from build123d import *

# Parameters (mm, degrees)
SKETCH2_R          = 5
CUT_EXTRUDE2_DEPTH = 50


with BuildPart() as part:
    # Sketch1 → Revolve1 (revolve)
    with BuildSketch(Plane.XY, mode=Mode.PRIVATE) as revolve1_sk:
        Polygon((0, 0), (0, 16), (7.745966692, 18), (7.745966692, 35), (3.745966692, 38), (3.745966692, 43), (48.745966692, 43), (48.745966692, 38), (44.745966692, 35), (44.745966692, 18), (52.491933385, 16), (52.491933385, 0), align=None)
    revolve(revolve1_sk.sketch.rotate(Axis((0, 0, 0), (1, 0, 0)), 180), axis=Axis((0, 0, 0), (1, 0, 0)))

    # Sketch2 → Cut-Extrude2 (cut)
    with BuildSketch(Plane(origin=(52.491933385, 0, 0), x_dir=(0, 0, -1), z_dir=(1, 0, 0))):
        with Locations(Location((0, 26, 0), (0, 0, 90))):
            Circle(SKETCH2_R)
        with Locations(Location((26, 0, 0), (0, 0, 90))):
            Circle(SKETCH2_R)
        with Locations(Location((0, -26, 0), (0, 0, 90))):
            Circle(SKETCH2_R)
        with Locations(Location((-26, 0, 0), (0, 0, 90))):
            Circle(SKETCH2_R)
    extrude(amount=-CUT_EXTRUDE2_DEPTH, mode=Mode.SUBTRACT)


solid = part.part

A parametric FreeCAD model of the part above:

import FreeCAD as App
import Part
import Sketcher
Q = App.Units.Quantity


def add_polygon(sketch, points):
    """Adds a closed chain of lines whose ends are joined by coincident constraints."""
    first, n = sketch.GeometryCount, len(points)
    for a, b in zip(points, points[1:] + points[:1]):
        sketch.addGeometry(Part.LineSegment(App.Vector(*a, 0), App.Vector(*b, 0)), False)
    for i in range(n):
        sketch.addConstraint(Sketcher.Constraint("Coincident", first + i, 2, first + (i + 1) % n, 1))

doc = App.newDocument("Part")
params = doc.addObject("Spreadsheet::Sheet", "Params")
for row, (alias, value) in enumerate([
    ("sketch1_width", "45 mm"),
    ("sketch1_height", "16 mm"),
    ("sketch1_height2", "17 mm"),
    ("sketch1_height3", "5 mm"),
    ("sketch1_length", "8 mm"),
    ("revolution_angle", "360 deg"),
    ("sketch2_diameter", "10 mm"),
    ("pocket1_length", "50 mm"),
], start=1):
    params.set(f"A{row}", alias)
    params.set(f"B{row}", "=" + value)
    params.setAlias(f"B{row}", alias)

body = doc.addObject("PartDesign::Body", "Body")

sketch1 = body.newObject("Sketcher::SketchObject", "Sketch")
sketch1.AttachmentSupport = (doc.getObject("XY_Plane"), [""])
sketch1.MapMode = "FlatFace"
add_polygon(sketch1, [(0, 16), (0, 0), (52.491933, 0), (52.491933, 16), (44.745967, 18), (44.745967, 35), (48.745967, 38), (48.745967, 43), (3.745967, 43), (3.745967, 38), (7.745967, 35), (7.745967, 18)])
sketch1.addConstraint([
    Sketcher.Constraint("Vertical", 0),
    Sketcher.Constraint("Horizontal", 1),
    Sketcher.Constraint("Vertical", 2),
    Sketcher.Constraint("Vertical", 4),
    Sketcher.Constraint("Vertical", 6),
    Sketcher.Constraint("Horizontal", 7),
    Sketcher.Constraint("Vertical", 8),
    Sketcher.Constraint("Vertical", 10),
    Sketcher.Constraint("Coincident", 0, 2, -1, 1),
    Sketcher.Constraint("Horizontal", 5, 2, 8, 2),
    Sketcher.Constraint("Horizontal", 4, 2, 9, 2),
    Sketcher.Constraint("Horizontal", 3, 2, 10, 2),
    Sketcher.Constraint("Horizontal", 2, 2, 11, 2),
    Sketcher.Constraint("Equal", 5, 9),
    Sketcher.Constraint("Equal", 3, 11),
    Sketcher.Constraint("DistanceX", 7, 2, 7, 1, Q("45 mm")),
    Sketcher.Constraint("DistanceY", 0, 2, 0, 1, Q("16 mm")),
    Sketcher.Constraint("DistanceY", 4, 1, 4, 2, Q("17 mm")),
    Sketcher.Constraint("DistanceY", 6, 1, 6, 2, Q("5 mm")),
    Sketcher.Constraint("Distance", 3, Q("8 mm")),
    Sketcher.Constraint("Distance", 5, Q("5 mm")),
    Sketcher.Constraint("DistanceY", -1, 1, 3, 2, Q("18 mm")),
    Sketcher.Constraint("DistanceY", -1, 1, 5, 2, Q("38 mm")),
])
sketch1.setExpression("Constraints[27]", "Params.sketch1_width")
sketch1.setExpression("Constraints[28]", "Params.sketch1_height")
sketch1.setExpression("Constraints[29]", "Params.sketch1_height2")
sketch1.setExpression("Constraints[30]", "Params.sketch1_height3")
sketch1.setExpression("Constraints[31]", "Params.sketch1_length")
revolution = body.newObject("PartDesign::Revolution", "Revolution")
revolution.Profile = sketch1
revolution.ReferenceAxis = (sketch1, ["H_Axis"])
revolution.setExpression("Angle", "Params.revolution_angle")

sketch2 = body.newObject("Sketcher::SketchObject", "Sketch001")
sketch2.AttachmentSupport = (doc.getObject("YZ_Plane"), [""])
sketch2.MapMode = "FlatFace"
sketch2.AttachmentOffset = App.Placement(App.Vector(0, 0, 52.491933), App.Rotation())
sketch2.addGeometry([
    Part.Circle(App.Vector(26, 0, 0), App.Vector(0, 0, 1), 5),
    Part.Circle(App.Vector(0, -26, 0), App.Vector(0, 0, 1), 5),
    Part.Circle(App.Vector(-26, 0, 0), App.Vector(0, 0, 1), 5),
    Part.Circle(App.Vector(0, 26, 0), App.Vector(0, 0, 1), 5),
], False)
sketch2.addConstraint([
    Sketcher.Constraint("Equal", 0, 1),
    Sketcher.Constraint("Equal", 1, 2),
    Sketcher.Constraint("Equal", 2, 3),
    Sketcher.Constraint("Symmetric", 0, 3, 2, 3, -1, 1),
    Sketcher.Constraint("Symmetric", 1, 3, 3, 3, -1, 1),
    Sketcher.Constraint("PointOnObject", 0, 3, -1),
    Sketcher.Constraint("PointOnObject", 1, 3, -2),
    Sketcher.Constraint("Diameter", 0, Q("10 mm")),
    Sketcher.Constraint("DistanceX", -1, 1, 0, 3, Q("26 mm")),
    Sketcher.Constraint("DistanceY", 1, 3, -1, 1, Q("26 mm")),
])
sketch2.setExpression("Constraints[7]", "Params.sketch2_diameter")
pocket1 = body.newObject("PartDesign::Pocket", "Pocket")
pocket1.Profile = sketch2
pocket1.setExpression("Length", "Params.pocket1_length")

doc.recompute()
